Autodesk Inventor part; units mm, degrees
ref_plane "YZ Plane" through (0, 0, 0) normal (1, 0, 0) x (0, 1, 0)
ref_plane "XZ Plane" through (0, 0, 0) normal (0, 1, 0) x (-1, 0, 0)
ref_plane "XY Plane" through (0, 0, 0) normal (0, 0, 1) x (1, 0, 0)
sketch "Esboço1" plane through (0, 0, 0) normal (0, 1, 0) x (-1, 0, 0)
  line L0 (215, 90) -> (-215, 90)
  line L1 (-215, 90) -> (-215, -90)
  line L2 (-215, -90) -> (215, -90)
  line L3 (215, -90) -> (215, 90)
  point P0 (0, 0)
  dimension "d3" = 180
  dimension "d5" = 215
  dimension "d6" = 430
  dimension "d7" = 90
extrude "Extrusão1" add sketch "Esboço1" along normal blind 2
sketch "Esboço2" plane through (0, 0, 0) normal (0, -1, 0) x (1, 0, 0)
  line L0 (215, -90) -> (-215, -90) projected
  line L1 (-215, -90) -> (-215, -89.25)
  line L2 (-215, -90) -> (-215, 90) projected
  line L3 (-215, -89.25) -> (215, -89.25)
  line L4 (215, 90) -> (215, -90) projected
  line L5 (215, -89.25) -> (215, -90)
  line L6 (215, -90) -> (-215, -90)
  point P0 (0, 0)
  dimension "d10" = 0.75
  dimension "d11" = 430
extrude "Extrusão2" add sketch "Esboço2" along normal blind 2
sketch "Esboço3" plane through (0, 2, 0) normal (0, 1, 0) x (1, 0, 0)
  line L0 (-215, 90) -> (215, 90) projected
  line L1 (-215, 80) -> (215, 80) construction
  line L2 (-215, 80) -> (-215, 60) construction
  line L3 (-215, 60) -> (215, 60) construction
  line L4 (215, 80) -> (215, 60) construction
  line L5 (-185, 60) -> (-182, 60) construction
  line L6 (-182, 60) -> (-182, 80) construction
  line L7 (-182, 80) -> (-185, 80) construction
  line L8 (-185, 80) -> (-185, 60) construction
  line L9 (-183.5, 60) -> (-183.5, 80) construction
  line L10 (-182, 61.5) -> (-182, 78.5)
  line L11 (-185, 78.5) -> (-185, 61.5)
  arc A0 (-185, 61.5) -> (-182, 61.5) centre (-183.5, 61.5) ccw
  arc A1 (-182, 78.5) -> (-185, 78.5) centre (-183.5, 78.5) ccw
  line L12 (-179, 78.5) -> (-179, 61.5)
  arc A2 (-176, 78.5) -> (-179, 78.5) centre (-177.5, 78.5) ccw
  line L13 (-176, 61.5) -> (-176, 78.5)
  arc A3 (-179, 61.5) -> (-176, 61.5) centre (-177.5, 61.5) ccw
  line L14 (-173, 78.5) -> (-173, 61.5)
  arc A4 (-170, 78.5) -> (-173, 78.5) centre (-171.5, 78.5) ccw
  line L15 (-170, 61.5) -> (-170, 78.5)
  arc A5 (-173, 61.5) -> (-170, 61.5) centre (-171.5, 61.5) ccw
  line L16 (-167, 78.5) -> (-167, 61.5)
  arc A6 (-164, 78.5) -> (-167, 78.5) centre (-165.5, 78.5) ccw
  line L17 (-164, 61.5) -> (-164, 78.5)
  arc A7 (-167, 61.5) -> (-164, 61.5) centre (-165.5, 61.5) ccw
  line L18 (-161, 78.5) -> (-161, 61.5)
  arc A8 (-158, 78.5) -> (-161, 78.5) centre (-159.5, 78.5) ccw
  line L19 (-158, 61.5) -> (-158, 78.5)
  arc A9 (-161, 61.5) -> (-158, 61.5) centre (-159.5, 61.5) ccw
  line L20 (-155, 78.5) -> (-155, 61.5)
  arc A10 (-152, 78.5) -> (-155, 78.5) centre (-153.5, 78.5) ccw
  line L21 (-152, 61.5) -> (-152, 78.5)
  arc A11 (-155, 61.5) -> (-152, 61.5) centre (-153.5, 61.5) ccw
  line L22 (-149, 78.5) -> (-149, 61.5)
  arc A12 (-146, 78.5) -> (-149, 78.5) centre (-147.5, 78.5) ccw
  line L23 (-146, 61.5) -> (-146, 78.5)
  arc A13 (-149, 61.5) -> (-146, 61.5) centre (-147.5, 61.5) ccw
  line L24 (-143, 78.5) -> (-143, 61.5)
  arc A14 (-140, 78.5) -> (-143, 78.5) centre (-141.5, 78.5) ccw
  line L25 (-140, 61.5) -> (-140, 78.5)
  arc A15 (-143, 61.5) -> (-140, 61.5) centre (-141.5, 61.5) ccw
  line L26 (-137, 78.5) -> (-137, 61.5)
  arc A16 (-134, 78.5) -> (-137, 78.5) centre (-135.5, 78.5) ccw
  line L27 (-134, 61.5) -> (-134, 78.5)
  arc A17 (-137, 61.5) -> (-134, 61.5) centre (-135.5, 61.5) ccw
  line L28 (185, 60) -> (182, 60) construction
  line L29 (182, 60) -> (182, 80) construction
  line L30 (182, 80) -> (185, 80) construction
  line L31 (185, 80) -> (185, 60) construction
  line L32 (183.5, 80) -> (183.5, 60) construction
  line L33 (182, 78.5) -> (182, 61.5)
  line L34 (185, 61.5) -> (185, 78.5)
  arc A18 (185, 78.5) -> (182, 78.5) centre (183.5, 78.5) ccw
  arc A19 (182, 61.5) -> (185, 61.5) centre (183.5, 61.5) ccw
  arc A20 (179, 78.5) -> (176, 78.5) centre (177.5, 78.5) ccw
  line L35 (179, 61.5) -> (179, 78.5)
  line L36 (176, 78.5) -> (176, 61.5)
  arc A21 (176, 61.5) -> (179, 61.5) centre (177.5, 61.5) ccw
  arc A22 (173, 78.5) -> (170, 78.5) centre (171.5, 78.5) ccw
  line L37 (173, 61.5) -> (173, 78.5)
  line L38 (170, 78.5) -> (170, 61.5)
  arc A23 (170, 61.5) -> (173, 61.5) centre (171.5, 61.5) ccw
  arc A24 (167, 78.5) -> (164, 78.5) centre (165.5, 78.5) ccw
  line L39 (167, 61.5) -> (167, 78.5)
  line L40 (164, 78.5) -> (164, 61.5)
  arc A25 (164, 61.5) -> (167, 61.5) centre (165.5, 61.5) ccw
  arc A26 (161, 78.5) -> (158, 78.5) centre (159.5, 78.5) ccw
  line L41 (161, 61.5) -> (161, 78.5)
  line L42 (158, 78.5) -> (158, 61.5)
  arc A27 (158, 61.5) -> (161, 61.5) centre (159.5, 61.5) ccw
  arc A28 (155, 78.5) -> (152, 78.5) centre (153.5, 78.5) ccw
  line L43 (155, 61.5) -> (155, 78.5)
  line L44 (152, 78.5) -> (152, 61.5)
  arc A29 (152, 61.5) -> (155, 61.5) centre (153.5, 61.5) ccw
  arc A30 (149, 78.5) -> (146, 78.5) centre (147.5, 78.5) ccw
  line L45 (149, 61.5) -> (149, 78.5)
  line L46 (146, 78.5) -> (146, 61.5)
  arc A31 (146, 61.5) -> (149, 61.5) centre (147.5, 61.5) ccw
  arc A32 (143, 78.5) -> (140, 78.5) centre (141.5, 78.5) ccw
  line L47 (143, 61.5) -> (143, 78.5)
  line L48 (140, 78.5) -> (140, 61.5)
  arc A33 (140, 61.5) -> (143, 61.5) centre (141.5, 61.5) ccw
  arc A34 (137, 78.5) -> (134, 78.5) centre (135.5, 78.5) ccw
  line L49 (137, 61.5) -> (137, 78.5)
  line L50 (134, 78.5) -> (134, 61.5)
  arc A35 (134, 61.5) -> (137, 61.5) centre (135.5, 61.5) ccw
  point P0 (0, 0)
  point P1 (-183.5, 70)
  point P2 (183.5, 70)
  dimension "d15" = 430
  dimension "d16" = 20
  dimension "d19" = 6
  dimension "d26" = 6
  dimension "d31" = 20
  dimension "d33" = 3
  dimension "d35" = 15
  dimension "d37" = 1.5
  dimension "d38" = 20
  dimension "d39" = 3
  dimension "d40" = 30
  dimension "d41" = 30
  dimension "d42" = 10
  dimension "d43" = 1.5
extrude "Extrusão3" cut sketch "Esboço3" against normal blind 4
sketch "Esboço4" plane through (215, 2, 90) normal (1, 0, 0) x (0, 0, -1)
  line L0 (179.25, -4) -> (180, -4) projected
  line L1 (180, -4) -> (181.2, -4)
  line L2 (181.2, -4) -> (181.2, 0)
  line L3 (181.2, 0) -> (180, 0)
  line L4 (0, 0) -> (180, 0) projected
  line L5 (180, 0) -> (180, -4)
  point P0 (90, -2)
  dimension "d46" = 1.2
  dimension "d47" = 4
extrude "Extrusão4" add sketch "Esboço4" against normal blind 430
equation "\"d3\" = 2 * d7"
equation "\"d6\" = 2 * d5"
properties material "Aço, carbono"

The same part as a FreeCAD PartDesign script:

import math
import FreeCAD as App
import Part
import Sketcher


def add_polygon(sketch, points):
    """Adds a closed chain of lines whose ends are joined by coincident constraints."""
    first, n = sketch.GeometryCount, len(points)
    for a, b in zip(points, points[1:] + points[:1]):
        sketch.addGeometry(Part.LineSegment(App.Vector(*a, 0), App.Vector(*b, 0)), False)
    for i in range(n):
        sketch.addConstraint(Sketcher.Constraint("Coincident", first + i, 2, first + (i + 1) % n, 1))

doc = App.newDocument("Part")
params = doc.addObject("Spreadsheet::Sheet", "Params")
for row, (alias, value) in enumerate([
    ("sketch1_width", "430 mm"),
    ("sketch1_height", "180 mm"),
    ("pad1_length", "2 mm"),
    ("sketch2_width", "430 mm"),
    ("sketch2_height", "0.75 mm"),
    ("pad2_length", "2 mm"),
    ("sketch3_radius", "1.5 mm"),
    ("sketch3_height", "17 mm"),
    ("pocket1_length", "4 mm"),
    ("sketch4_width", "4 mm"),
    ("sketch4_height", "1.2 mm"),
    ("pad3_length", "430 mm"),
], start=1):
    params.set(f"A{row}", alias)
    params.set(f"B{row}", "=" + value)
    params.setAlias(f"B{row}", alias)

body = doc.addObject("PartDesign::Body", "Body")

sketch1 = body.newObject("Sketcher::SketchObject", "Sketch")
sketch1.AttachmentSupport = (doc.getObject("XZ_Plane"), [""])
sketch1.MapMode = "FlatFace"
add_polygon(sketch1, [(-215, -90), (-215, 90), (215, 90), (215, -90)])
sketch1.addConstraint([
    Sketcher.Constraint("Vertical", 0),
    Sketcher.Constraint("Horizontal", 1),
    Sketcher.Constraint("Vertical", 2),
    Sketcher.Constraint("Horizontal", 3),
    Sketcher.Constraint("Symmetric", 0, 2, 2, 2, -1, 1),
    Sketcher.Constraint("DistanceX", 1, 1, 1, 2, 430.0),
    Sketcher.Constraint("DistanceY", 0, 1, 0, 2, 180.0),
])
sketch1.setExpression("Constraints[9]", "Params.sketch1_width")
sketch1.setExpression("Constraints[10]", "Params.sketch1_height")
pad1 = body.newObject("PartDesign::Pad", "Pad")
pad1.Profile = sketch1
pad1.setExpression("Length", "Params.pad1_length")
pad1.Reversed = True

sketch2 = body.newObject("Sketcher::SketchObject", "Sketch001")
sketch2.AttachmentSupport = (doc.getObject("XZ_Plane"), [""])
sketch2.MapMode = "FlatFace"
add_polygon(sketch2, [(-215, -90), (215, -90), (215, -89.2), (-215, -89.2)])
sketch2.addConstraint([
    Sketcher.Constraint("Horizontal", 0),
    Sketcher.Constraint("Vertical", 1),
    Sketcher.Constraint("Horizontal", 2),
    Sketcher.Constraint("Vertical", 3),
    Sketcher.Constraint("DistanceX", 0, 1, 0, 2, 430.0),
    Sketcher.Constraint("DistanceY", 1, 1, 1, 2, 0.75),
    Sketcher.Constraint("DistanceX", -1, 1, 0, 2, 215.0),
    Sketcher.Constraint("DistanceY", 0, 2, -1, 1, 90.0),
])
sketch2.setExpression("Constraints[8]", "Params.sketch2_width")
sketch2.setExpression("Constraints[9]", "Params.sketch2_height")
pad2 = body.newObject("PartDesign::Pad", "Pad001")
pad2.Profile = sketch2
pad2.setExpression("Length", "Params.pad2_length")

sketch3 = body.newObject("Sketcher::SketchObject", "Sketch002")
sketch3.AttachmentSupport = (doc.getObject("XZ_Plane"), [""])
sketch3.MapMode = "FlatFace"
sketch3.AttachmentOffset = App.Placement(App.Vector(0, 0, -2), App.Rotation())
sketch3.addGeometry([
    Part.ArcOfCircle(Part.Circle(App.Vector(-183.5, -61.5, 0), App.Vector(0, 0, 1), 1.5), math.radians(0), math.radians(180)),
    Part.LineSegment(App.Vector(-182, -61.5, 0), App.Vector(-182, -78.5, 0)),
    Part.ArcOfCircle(Part.Circle(App.Vector(-183.5, -78.5, 0), App.Vector(0, 0, 1), 1.5), math.radians(180), math.radians(360)),
    Part.LineSegment(App.Vector(-185, -78.5, 0), App.Vector(-185, -61.5, 0)),
    Part.ArcOfCircle(Part.Circle(App.Vector(-177.5, -78.5, 0), App.Vector(0, 0, 1), 1.5), math.radians(180), math.radians(360)),
    Part.LineSegment(App.Vector(-179, -78.5, 0), App.Vector(-179, -61.5, 0)),
    Part.ArcOfCircle(Part.Circle(App.Vector(-177.5, -61.5, 0), App.Vector(0, 0, 1), 1.5), math.radians(0), math.radians(180)),
    Part.LineSegment(App.Vector(-176, -61.5, 0), App.Vector(-176, -78.5, 0)),
    Part.ArcOfCircle(Part.Circle(App.Vector(-171.5, -78.5, 0), App.Vector(0, 0, 1), 1.5), math.radians(180), math.radians(360)),
    Part.LineSegment(App.Vector(-173, -78.5, 0), App.Vector(-173, -61.5, 0)),
    Part.ArcOfCircle(Part.Circle(App.Vector(-171.5, -61.5, 0), App.Vector(0, 0, 1), 1.5), math.radians(0), math.radians(180)),
    Part.LineSegment(App.Vector(-170, -61.5, 0), App.Vector(-170, -78.5, 0)),
    Part.ArcOfCircle(Part.Circle(App.Vector(-165.5, -78.5, 0), App.Vector(0, 0, 1), 1.5), math.radians(180), math.radians(360)),
    Part.LineSegment(App.Vector(-167, -78.5, 0), App.Vector(-167, -61.5, 0)),
    Part.ArcOfCircle(Part.Circle(App.Vector(-165.5, -61.5, 0), App.Vector(0, 0, 1), 1.5), math.radians(0), math.radians(180)),
    Part.LineSegment(App.Vector(-164, -61.5, 0), App.Vector(-164, -78.5, 0)),
    Part.ArcOfCircle(Part.Circle(App.Vector(-159.5, -78.5, 0), App.Vector(0, 0, 1), 1.5), math.radians(180), math.radians(360)),
    Part.LineSegment(App.Vector(-161, -78.5, 0), App.Vector(-161, -61.5, 0)),
    Part.ArcOfCircle(Part.Circle(App.Vector(-159.5, -61.5, 0), App.Vector(0, 0, 1), 1.5), math.radians(0), math.radians(180)),
    Part.LineSegment(App.Vector(-158, -61.5, 0), App.Vector(-158, -78.5, 0)),
    Part.ArcOfCircle(Part.Circle(App.Vector(-153.5, -78.5, 0), App.Vector(0, 0, 1), 1.5), math.radians(180), math.radians(360)),
    Part.LineSegment(App.Vector(-155, -78.5, 0), App.Vector(-155, -61.5, 0)),
    Part.ArcOfCircle(Part.Circle(App.Vector(-153.5, -61.5, 0), App.Vector(0, 0, 1), 1.5), math.radians(0), math.radians(180)),
    Part.LineSegment(App.Vector(-152, -61.5, 0), App.Vector(-152, -78.5, 0)),
    Part.ArcOfCircle(Part.Circle(App.Vector(-147.5, -78.5, 0), App.Vector(0, 0, 1), 1.5), math.radians(180), math.radians(360)),
    Part.LineSegment(App.Vector(-149, -78.5, 0), App.Vector(-149, -61.5, 0)),
    Part.ArcOfCircle(Part.Circle(App.Vector(-147.5, -61.5, 0), App.Vector(0, 0, 1), 1.5), math.radians(0), math.radians(180)),
    Part.LineSegment(App.Vector(-146, -61.5, 0), App.Vector(-146, -78.5, 0)),
    Part.ArcOfCircle(Part.Circle(App.Vector(-141.5, -78.5, 0), App.Vector(0, 0, 1), 1.5), math.radians(180), math.radians(360)),
    Part.LineSegment(App.Vector(-143, -78.5, 0), App.Vector(-143, -61.5, 0)),
    Part.ArcOfCircle(Part.Circle(App.Vector(-141.5, -61.5, 0), App.Vector(0, 0, 1), 1.5), math.radians(0), math.radians(180)),
    Part.LineSegment(App.Vector(-140, -61.5, 0), App.Vector(-140, -78.5, 0)),
    Part.ArcOfCircle(Part.Circle(App.Vector(-135.5, -78.5, 0), App.Vector(0, 0, 1), 1.5), math.radians(180), math.radians(360)),
    Part.LineSegment(App.Vector(-137, -78.5, 0), App.Vector(-137, -61.5, 0)),
    Part.ArcOfCircle(Part.Circle(App.Vector(-135.5, -61.5, 0), App.Vector(0, 0, 1), 1.5), math.radians(0), math.radians(180)),
    Part.LineSegment(App.Vector(-134, -61.5, 0), App.Vector(-134, -78.5, 0)),
    Part.ArcOfCircle(Part.Circle(App.Vector(183.5, -78.5, 0), App.Vector(0, 0, 1), 1.5), math.radians(180), math.radians(360)),
    Part.LineSegment(App.Vector(182, -78.5, 0), App.Vector(182, -61.5, 0)),
    Part.ArcOfCircle(Part.Circle(App.Vector(183.5, -61.5, 0), App.Vector(0, 0, 1), 1.5), math.radians(0), math.radians(180)),
    Part.LineSegment(App.Vector(185, -61.5, 0), App.Vector(185, -78.5, 0)),
    Part.LineSegment(App.Vector(179, -61.5, 0), App.Vector(179, -78.5, 0)),
    Part.ArcOfCircle(Part.Circle(App.Vector(177.5, -78.5, 0), App.Vector(0, 0, 1), 1.5), math.radians(180), math.radians(360)),
    Part.LineSegment(App.Vector(176, -78.5, 0), App.Vector(176, -61.5, 0)),
    Part.ArcOfCircle(Part.Circle(App.Vector(177.5, -61.5, 0), App.Vector(0, 0, 1), 1.5), math.radians(0), math.radians(180)),
    Part.LineSegment(App.Vector(173, -61.5, 0), App.Vector(173, -78.5, 0)),
    Part.ArcOfCircle(Part.Circle(App.Vector(171.5, -78.5, 0), App.Vector(0, 0, 1), 1.5), math.radians(180), math.radians(360)),
    Part.LineSegment(App.Vector(170, -78.5, 0), App.Vector(170, -61.5, 0)),
    Part.ArcOfCircle(Part.Circle(App.Vector(171.5, -61.5, 0), App.Vector(0, 0, 1), 1.5), math.radians(0), math.radians(180)),
    Part.LineSegment(App.Vector(167, -61.5, 0), App.Vector(167, -78.5, 0)),
    Part.ArcOfCircle(Part.Circle(App.Vector(165.5, -78.5, 0), App.Vector(0, 0, 1), 1.5), math.radians(180), math.radians(360)),
    Part.LineSegment(App.Vector(164, -78.5, 0), App.Vector(164, -61.5, 0)),
    Part.ArcOfCircle(Part.Circle(App.Vector(165.5, -61.5, 0), App.Vector(0, 0, 1), 1.5), math.radians(0), math.radians(180)),
    Part.LineSegment(App.Vector(161, -61.5, 0), App.Vector(161, -78.5, 0)),
    Part.ArcOfCircle(Part.Circle(App.Vector(159.5, -78.5, 0), App.Vector(0, 0, 1), 1.5), math.radians(180), math.radians(360)),
    Part.LineSegment(App.Vector(158, -78.5, 0), App.Vector(158, -61.5, 0)),
    Part.ArcOfCircle(Part.Circle(App.Vector(159.5, -61.5, 0), App.Vector(0, 0, 1), 1.5), math.radians(0), math.radians(180)),
    Part.LineSegment(App.Vector(155, -61.5, 0), App.Vector(155, -78.5, 0)),
    Part.ArcOfCircle(Part.Circle(App.Vector(153.5, -78.5, 0), App.Vector(0, 0, 1), 1.5), math.radians(180), math.radians(360)),
    Part.LineSegment(App.Vector(152, -78.5, 0), App.Vector(152, -61.5, 0)),
    Part.ArcOfCircle(Part.Circle(App.Vector(153.5, -61.5, 0), App.Vector(0, 0, 1), 1.5), math.radians(0), math.radians(180)),
    Part.LineSegment(App.Vector(149, -61.5, 0), App.Vector(149, -78.5, 0)),
    Part.ArcOfCircle(Part.Circle(App.Vector(147.5, -78.5, 0), App.Vector(0, 0, 1), 1.5), math.radians(180), math.radians(360)),
    Part.LineSegment(App.Vector(146, -78.5, 0), App.Vector(146, -61.5, 0)),
    Part.ArcOfCircle(Part.Circle(App.Vector(147.5, -61.5, 0), App.Vector(0, 0, 1), 1.5), math.radians(0), math.radians(180)),
    Part.LineSegment(App.Vector(143, -61.5, 0), App.Vector(143, -78.5, 0)),
    Part.ArcOfCircle(Part.Circle(App.Vector(141.5, -78.5, 0), App.Vector(0, 0, 1), 1.5), math.radians(180), math.radians(360)),
    Part.LineSegment(App.Vector(140, -78.5, 0), App.Vector(140, -61.5, 0)),
    Part.ArcOfCircle(Part.Circle(App.Vector(141.5, -61.5, 0), App.Vector(0, 0, 1), 1.5), math.radians(0), math.radians(180)),
    Part.LineSegment(App.Vector(137, -61.5, 0), App.Vector(137, -78.5, 0)),
    Part.ArcOfCircle(Part.Circle(App.Vector(135.5, -78.5, 0), App.Vector(0, 0, 1), 1.5), math.radians(180), math.radians(360)),
    Part.LineSegment(App.Vector(134, -78.5, 0), App.Vector(134, -61.5, 0)),
    Part.ArcOfCircle(Part.Circle(App.Vector(135.5, -61.5, 0), App.Vector(0, 0, 1), 1.5), math.radians(0), math.radians(180)),
], False)
sketch3.addConstraint([
    Sketcher.Constraint("Tangent", 0, 1, 1, 1),
    Sketcher.Constraint("Tangent", 1, 2, 2, 2),
    Sketcher.Constraint("Tangent", 2, 1, 3, 1),
    Sketcher.Constraint("Tangent", 3, 2, 0, 2),
    Sketcher.Constraint("Tangent", 4, 1, 5, 1),
    Sketcher.Constraint("Tangent", 5, 2, 6, 2),
    Sketcher.Constraint("Tangent", 6, 1, 7, 1),
    Sketcher.Constraint("Tangent", 7, 2, 4, 2),
    Sketcher.Constraint("Tangent", 8, 1, 9, 1),
    Sketcher.Constraint("Tangent", 9, 2, 10, 2),
    Sketcher.Constraint("Tangent", 10, 1, 11, 1),
    Sketcher.Constraint("Tangent", 11, 2, 8, 2),
    Sketcher.Constraint("Tangent", 12, 1, 13, 1),
    Sketcher.Constraint("Tangent", 13, 2, 14, 2),
    Sketcher.Constraint("Tangent", 14, 1, 15, 1),
    Sketcher.Constraint("Tangent", 15, 2, 12, 2),
    Sketcher.Constraint("Tangent", 16, 1, 17, 1),
    Sketcher.Constraint("Tangent", 17, 2, 18, 2),
    Sketcher.Constraint("Tangent", 18, 1, 19, 1),
    Sketcher.Constraint("Tangent", 19, 2, 16, 2),
    Sketcher.Constraint("Tangent", 20, 1, 21, 1),
    Sketcher.Constraint("Tangent", 21, 2, 22, 2),
    Sketcher.Constraint("Tangent", 22, 1, 23, 1),
    Sketcher.Constraint("Tangent", 23, 2, 20, 2),
    Sketcher.Constraint("Tangent", 24, 1, 25, 1),
    Sketcher.Constraint("Tangent", 25, 2, 26, 2),
    Sketcher.Constraint("Tangent", 26, 1, 27, 1),
    Sketcher.Constraint("Tangent", 27, 2, 24, 2),
    Sketcher.Constraint("Tangent", 28, 1, 29, 1),
    Sketcher.Constraint("Tangent", 29, 2, 30, 2),
    Sketcher.Constraint("Tangent", 30, 1, 31, 1),
    Sketcher.Constraint("Tangent", 31, 2, 28, 2),
    Sketcher.Constraint("Tangent", 32, 1, 33, 1),
    Sketcher.Constraint("Tangent", 33, 2, 34, 2),
    Sketcher.Constraint("Tangent", 34, 1, 35, 1),
    Sketcher.Constraint("Tangent", 35, 2, 32, 2),
    Sketcher.Constraint("Tangent", 36, 1, 37, 1),
    Sketcher.Constraint("Tangent", 37, 2, 38, 2),
    Sketcher.Constraint("Tangent", 38, 1, 39, 1),
    Sketcher.Constraint("Tangent", 39, 2, 36, 2),
    Sketcher.Constraint("Tangent", 40, 2, 41, 2),
    Sketcher.Constraint("Tangent", 41, 1, 42, 1),
    Sketcher.Constraint("Tangent", 42, 2, 43, 2),
    Sketcher.Constraint("Tangent", 43, 1, 40, 1),
    Sketcher.Constraint("Tangent", 44, 2, 45, 2),
    Sketcher.Constraint("Tangent", 45, 1, 46, 1),
    Sketcher.Constraint("Tangent", 46, 2, 47, 2),
    Sketcher.Constraint("Tangent", 47, 1, 44, 1),
    Sketcher.Constraint("Tangent", 48, 2, 49, 2),
    Sketcher.Constraint("Tangent", 49, 1, 50, 1),
    Sketcher.Constraint("Tangent", 50, 2, 51, 2),
    Sketcher.Constraint("Tangent", 51, 1, 48, 1),
    Sketcher.Constraint("Tangent", 52, 2, 53, 2),
    Sketcher.Constraint("Tangent", 53, 1, 54, 1),
    Sketcher.Constraint("Tangent", 54, 2, 55, 2),
    Sketcher.Constraint("Tangent", 55, 1, 52, 1),
    Sketcher.Constraint("Tangent", 56, 2, 57, 2),
    Sketcher.Constraint("Tangent", 57, 1, 58, 1),
    Sketcher.Constraint("Tangent", 58, 2, 59, 2),
    Sketcher.Constraint("Tangent", 59, 1, 56, 1),
    Sketcher.Constraint("Tangent", 60, 2, 61, 2),
    Sketcher.Constraint("Tangent", 61, 1, 62, 1),
    Sketcher.Constraint("Tangent", 62, 2, 63, 2),
    Sketcher.Constraint("Tangent", 63, 1, 60, 1),
    Sketcher.Constraint("Tangent", 64, 2, 65, 2),
    Sketcher.Constraint("Tangent", 65, 1, 66, 1),
    Sketcher.Constraint("Tangent", 66, 2, 67, 2),
    Sketcher.Constraint("Tangent", 67, 1, 64, 1),
    Sketcher.Constraint("Tangent", 68, 2, 69, 2),
    Sketcher.Constraint("Tangent", 69, 1, 70, 1),
    Sketcher.Constraint("Tangent", 70, 2, 71, 2),
    Sketcher.Constraint("Tangent", 71, 1, 68, 1),
    Sketcher.Constraint("Vertical", 1),
    Sketcher.Constraint("Vertical", 3),
    Sketcher.Constraint("Vertical", 5),
    Sketcher.Constraint("Vertical", 7),
    Sketcher.Constraint("Vertical", 9),
    Sketcher.Constraint("Vertical", 11),
    Sketcher.Constraint("Vertical", 13),
    Sketcher.Constraint("Vertical", 15),
    Sketcher.Constraint("Vertical", 17),
    Sketcher.Constraint("Vertical", 19),
    Sketcher.Constraint("Vertical", 21),
    Sketcher.Constraint("Vertical", 23),
    Sketcher.Constraint("Vertical", 25),
    Sketcher.Constraint("Vertical", 27),
    Sketcher.Constraint("Vertical", 29),
    Sketcher.Constraint("Vertical", 31),
    Sketcher.Constraint("Vertical", 33),
    Sketcher.Constraint("Vertical", 35),
    Sketcher.Constraint("Vertical", 37),
    Sketcher.Constraint("Vertical", 39),
    Sketcher.Constraint("Vertical", 40),
    Sketcher.Constraint("Vertical", 42),
    Sketcher.Constraint("Vertical", 44),
    Sketcher.Constraint("Vertical", 46),
    Sketcher.Constraint("Vertical", 48),
    Sketcher.Constraint("Vertical", 50),
    Sketcher.Constraint("Vertical", 52),
    Sketcher.Constraint("Vertical", 54),
    Sketcher.Constraint("Vertical", 56),
    Sketcher.Constraint("Vertical", 58),
    Sketcher.Constraint("Vertical", 60),
    Sketcher.Constraint("Vertical", 62),
    Sketcher.Constraint("Vertical", 64),
    Sketcher.Constraint("Vertical", 66),
    Sketcher.Constraint("Vertical", 68),
    Sketcher.Constraint("Vertical", 70),
    Sketcher.Constraint("Equal", 2, 4),
    Sketcher.Constraint("Equal", 6, 8),
    Sketcher.Constraint("Equal", 10, 12),
    Sketcher.Constraint("Equal", 14, 16),
    Sketcher.Constraint("Equal", 18, 20),
    Sketcher.Constraint("Equal", 22, 24),
    Sketcher.Constraint("Equal", 26, 28),
    Sketcher.Constraint("Equal", 30, 32),
    Sketcher.Constraint("Equal", 34, 36),
    Sketcher.Constraint("Equal", 38, 41),
    Sketcher.Constraint("Equal", 43, 45),
    Sketcher.Constraint("Equal", 47, 49),
    Sketcher.Constraint("Equal", 51, 53),
    Sketcher.Constraint("Equal", 55, 57),
    Sketcher.Constraint("Equal", 59, 61),
    Sketcher.Constraint("Equal", 63, 65),
    Sketcher.Constraint("Equal", 67, 69),
    Sketcher.Constraint("Symmetric", 2, 3, 36, 3, -2),
    Sketcher.Constraint("Symmetric", 4, 3, 41, 3, -2),
    Sketcher.Constraint("Symmetric", 8, 3, 45, 3, -2),
    Sketcher.Constraint("Symmetric", 12, 3, 49, 3, -2),
    Sketcher.Constraint("Symmetric", 16, 3, 53, 3, -2),
    Sketcher.Constraint("Symmetric", 20, 3, 57, 3, -2),
    Sketcher.Constraint("Symmetric", 24, 3, 61, 3, -2),
    Sketcher.Constraint("Symmetric", 28, 3, 65, 3, -2),
    Sketcher.Constraint("Symmetric", 32, 3, 69, 3, -2),
    Sketcher.Constraint("Horizontal", 2, 3, 4, 3),
    Sketcher.Constraint("Horizontal", 0, 3, 6, 3),
    Sketcher.Constraint("Horizontal", 4, 3, 8, 3),
    Sketcher.Constraint("Horizontal", 6, 3, 10, 3),
    Sketcher.Constraint("Horizontal", 8, 3, 12, 3),
    Sketcher.Constraint("Horizontal", 10, 3, 14, 3),
    Sketcher.Constraint("Horizontal", 12, 3, 16, 3),
    Sketcher.Constraint("Horizontal", 14, 3, 18, 3),
    Sketcher.Constraint("Horizontal", 16, 3, 20, 3),
    Sketcher.Constraint("Horizontal", 18, 3, 22, 3),
    Sketcher.Constraint("Horizontal", 20, 3, 24, 3),
    Sketcher.Constraint("Horizontal", 22, 3, 26, 3),
    Sketcher.Constraint("Horizontal", 24, 3, 28, 3),
    Sketcher.Constraint("Horizontal", 26, 3, 30, 3),
    Sketcher.Constraint("Horizontal", 28, 3, 32, 3),
    Sketcher.Constraint("Horizontal", 30, 3, 34, 3),
    Sketcher.Constraint("Horizontal", 34, 3, 38, 3),
    Sketcher.Constraint("Horizontal", 38, 3, 43, 3),
    Sketcher.Constraint("Horizontal", 43, 3, 47, 3),
    Sketcher.Constraint("Horizontal", 47, 3, 51, 3),
    Sketcher.Constraint("Horizontal", 51, 3, 55, 3),
    Sketcher.Constraint("Horizontal", 55, 3, 59, 3),
    Sketcher.Constraint("Horizontal", 59, 3, 63, 3),
    Sketcher.Constraint("Horizontal", 63, 3, 67, 3),
    Sketcher.Constraint("Horizontal", 67, 3, 71, 3),
    Sketcher.Constraint("Radius", 0, 1.5),
    Sketcher.Constraint("DistanceY", 1, 2, 1, 1, 17.0),
    Sketcher.Constraint("DistanceX", 0, 1, -1, 1, 182.0),
    Sketcher.Constraint("DistanceX", 4, 1, -1, 1, 179.0),
    Sketcher.Constraint("DistanceX", 8, 1, -1, 1, 173.0),
    Sketcher.Constraint("DistanceX", 12, 1, -1, 1, 167.0),
    Sketcher.Constraint("DistanceX", 16, 1, -1, 1, 161.0),
    Sketcher.Constraint("DistanceX", 20, 1, -1, 1, 155.0),
    Sketcher.Constraint("DistanceX", 24, 1, -1, 1, 149.0),
    Sketcher.Constraint("DistanceX", 28, 1, -1, 1, 143.0),
    Sketcher.Constraint("DistanceX", 32, 1, -1, 1, 137.0),
    Sketcher.Constraint("DistanceY", 0, 3, -1, 1, 61.5),
])
sketch3.setExpression("Constraints[159]", "Params.sketch3_radius")
sketch3.setExpression("Constraints[160]", "Params.sketch3_height")
pocket1 = body.newObject("PartDesign::Pocket", "Pocket")
pocket1.Profile = sketch3
pocket1.setExpression("Length", "Params.pocket1_length")
pocket1.Reversed = True

sketch4 = body.newObject("Sketcher::SketchObject", "Sketch003")
sketch4.AttachmentSupport = (doc.getObject("YZ_Plane"), [""])
sketch4.MapMode = "FlatFace"
sketch4.AttachmentOffset = App.Placement(App.Vector(0, 0, 215), App.Rotation())
add_polygon(sketch4, [(2, -90), (-2, -90), (-2, -91.2), (2, -91.2)])
sketch4.addConstraint([
    Sketcher.Constraint("Horizontal", 0),
    Sketcher.Constraint("Vertical", 1),
    Sketcher.Constraint("Horizontal", 2),
    Sketcher.Constraint("Vertical", 3),
    Sketcher.Constraint("DistanceX", 0, 2, 0, 1, 4.0),
    Sketcher.Constraint("DistanceY", 1, 2, 1, 1, 1.2),
    Sketcher.Constraint("DistanceX", 0, 2, -1, 1, 2.0),
    Sketcher.Constraint("DistanceY", 0, 2, -1, 1, 90.0),
])
sketch4.setExpression("Constraints[8]", "Params.sketch4_width")
sketch4.setExpression("Constraints[9]", "Params.sketch4_height")
pad3 = body.newObject("PartDesign::Pad", "Pad002")
pad3.Profile = sketch4
pad3.setExpression("Length", "Params.pad3_length")
pad3.Reversed = True

doc.recompute()
